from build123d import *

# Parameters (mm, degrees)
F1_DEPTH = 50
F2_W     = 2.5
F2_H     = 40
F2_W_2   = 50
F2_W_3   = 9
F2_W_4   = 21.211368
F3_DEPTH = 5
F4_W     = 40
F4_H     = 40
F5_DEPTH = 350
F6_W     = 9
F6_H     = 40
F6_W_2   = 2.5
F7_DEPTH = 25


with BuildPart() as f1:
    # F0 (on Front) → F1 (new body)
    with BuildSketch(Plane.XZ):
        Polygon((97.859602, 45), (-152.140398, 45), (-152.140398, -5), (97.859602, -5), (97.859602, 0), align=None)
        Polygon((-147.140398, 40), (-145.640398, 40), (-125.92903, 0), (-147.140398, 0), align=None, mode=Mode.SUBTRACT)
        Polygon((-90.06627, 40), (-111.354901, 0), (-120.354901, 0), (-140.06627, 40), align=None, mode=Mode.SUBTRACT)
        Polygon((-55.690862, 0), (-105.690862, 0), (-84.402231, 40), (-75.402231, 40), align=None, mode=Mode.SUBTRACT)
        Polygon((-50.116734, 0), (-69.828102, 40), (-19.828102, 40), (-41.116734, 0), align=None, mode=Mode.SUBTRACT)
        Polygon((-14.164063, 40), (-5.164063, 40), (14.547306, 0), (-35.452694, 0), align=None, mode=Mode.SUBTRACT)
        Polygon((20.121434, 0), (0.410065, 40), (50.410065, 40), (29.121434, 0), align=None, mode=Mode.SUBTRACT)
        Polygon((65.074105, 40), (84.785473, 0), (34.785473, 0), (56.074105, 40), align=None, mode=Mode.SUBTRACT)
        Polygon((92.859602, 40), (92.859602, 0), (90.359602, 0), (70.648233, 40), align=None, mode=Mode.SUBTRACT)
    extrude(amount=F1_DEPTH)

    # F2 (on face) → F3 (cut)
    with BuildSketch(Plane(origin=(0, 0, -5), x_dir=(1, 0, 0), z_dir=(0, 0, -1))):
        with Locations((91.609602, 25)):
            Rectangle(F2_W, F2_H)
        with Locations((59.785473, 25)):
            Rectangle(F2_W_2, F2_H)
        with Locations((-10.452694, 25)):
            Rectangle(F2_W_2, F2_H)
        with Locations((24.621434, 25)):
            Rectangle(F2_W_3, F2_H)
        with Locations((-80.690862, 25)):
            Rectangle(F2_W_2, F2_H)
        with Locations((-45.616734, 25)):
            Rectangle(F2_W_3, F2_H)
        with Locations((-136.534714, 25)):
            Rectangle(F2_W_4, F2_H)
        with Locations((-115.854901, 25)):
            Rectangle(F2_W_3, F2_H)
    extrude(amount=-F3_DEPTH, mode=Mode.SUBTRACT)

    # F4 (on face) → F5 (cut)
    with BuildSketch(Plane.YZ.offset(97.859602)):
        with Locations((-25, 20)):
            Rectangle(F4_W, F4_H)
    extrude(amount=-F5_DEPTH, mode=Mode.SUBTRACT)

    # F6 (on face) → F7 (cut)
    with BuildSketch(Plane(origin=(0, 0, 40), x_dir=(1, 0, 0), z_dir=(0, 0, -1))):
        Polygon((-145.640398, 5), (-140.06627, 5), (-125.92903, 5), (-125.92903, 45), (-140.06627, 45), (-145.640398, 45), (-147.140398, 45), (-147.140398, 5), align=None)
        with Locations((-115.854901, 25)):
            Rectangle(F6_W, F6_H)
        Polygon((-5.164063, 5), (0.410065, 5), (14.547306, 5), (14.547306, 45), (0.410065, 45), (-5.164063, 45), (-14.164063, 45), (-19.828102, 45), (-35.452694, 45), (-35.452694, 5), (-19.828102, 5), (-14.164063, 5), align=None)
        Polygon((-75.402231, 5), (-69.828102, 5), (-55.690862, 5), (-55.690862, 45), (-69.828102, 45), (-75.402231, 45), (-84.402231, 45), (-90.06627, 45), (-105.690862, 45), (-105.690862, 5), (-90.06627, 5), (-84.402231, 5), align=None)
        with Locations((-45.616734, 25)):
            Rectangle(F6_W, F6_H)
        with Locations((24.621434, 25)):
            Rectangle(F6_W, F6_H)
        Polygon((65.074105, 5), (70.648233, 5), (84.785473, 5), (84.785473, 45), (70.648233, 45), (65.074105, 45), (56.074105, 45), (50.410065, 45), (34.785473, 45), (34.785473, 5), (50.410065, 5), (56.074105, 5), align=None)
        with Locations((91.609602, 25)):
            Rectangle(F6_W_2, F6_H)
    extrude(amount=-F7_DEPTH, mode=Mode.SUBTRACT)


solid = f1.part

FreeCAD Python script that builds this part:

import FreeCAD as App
import Part
import Sketcher
from FreeCAD import Vector


def add_polygon(sketch, points):
    """Adds a closed chain of lines whose ends are joined by coincident constraints."""
    first, n = sketch.GeometryCount, len(points)
    for a, b in zip(points, points[1:] + points[:1]):
        sketch.addGeometry(Part.LineSegment(App.Vector(*a, 0), App.Vector(*b, 0)), False)
    for i in range(n):
        sketch.addConstraint(Sketcher.Constraint("Coincident", first + i, 2, first + (i + 1) % n, 1))

doc = App.newDocument("Part")
params = doc.addObject("Spreadsheet::Sheet", "Params")
for row, (alias, value) in enumerate([
    ("sketch1_width", "250 mm"),
    ("sketch1_width2", "50 mm"),
    ("sketch1_width3", "9 mm"),
    ("sketch1_height", "40 mm"),
    ("sketch1_width4", "1.5 mm"),
    ("pad1_length", "50 mm"),
    ("sketch2_width", "50 mm"),
    ("sketch2_width2", "9 mm"),
    ("sketch2_height", "40 mm"),
    ("sketch2_width3", "2.5 mm"),
    ("pocket1_length", "5 mm"),
    ("sketch3_width", "40 mm"),
    ("pocket2_length", "350 mm"),
    ("sketch4_width", "9 mm"),
    ("sketch4_width2", "50 mm"),
    ("sketch4_height", "40 mm"),
    ("sketch4_width3", "2.5 mm"),
    ("pocket3_length", "25 mm"),
], start=1):
    params.set(f"A{row}", alias)
    params.set(f"B{row}", "=" + value)
    params.setAlias(f"B{row}", alias)

body = doc.addObject("PartDesign::Body", "Body")

sketch1 = doc.addObject("Sketcher::SketchObject", "Sketch")
body.addObject(sketch1)
sketch1.AttachmentSupport = (doc.XZ_Plane, [""])
sketch1.MapMode = "FlatFace"
add_polygon(sketch1, [(97.9, 45), (-152.1, 45), (-152.1, -5), (97.9, -5)])
add_polygon(sketch1, [(-75.4, 40), (-55.7, 0), (-105.7, 0), (-84.4, 40)])
add_polygon(sketch1, [(-41.1, 0), (-50.1, 0), (-69.8, 40), (-19.8, 40)])
add_polygon(sketch1, [(-147.1, 0), (-147.1, 40), (-145.6, 40), (-125.9, 0)])
add_polygon(sketch1, [(-140.1, 40), (-90.1, 40), (-111.4, 0), (-120.4, 0)])
add_polygon(sketch1, [(-35.5, 0), (-14.2, 40), (-5.2, 40), (14.5, 0)])
add_polygon(sketch1, [(29.1, 0), (20.1, 0), (0.4, 40), (50.4, 40)])
add_polygon(sketch1, [(56.1, 40), (65.1, 40), (84.8, 0), (34.8, 0)])
add_polygon(sketch1, [(70.6, 40), (92.9, 40), (92.9, 0), (90.4, 0)])
sketch1.addConstraint([
    Sketcher.Constraint("Horizontal", 0),
    Sketcher.Constraint("Vertical", 1),
    Sketcher.Constraint("Horizontal", 2),
    Sketcher.Constraint("Vertical", 3),
    Sketcher.Constraint("Horizontal", 5),
    Sketcher.Constraint("Horizontal", 7),
    Sketcher.Constraint("Horizontal", 8),
    Sketcher.Constraint("Horizontal", 10),
    Sketcher.Constraint("Vertical", 12),
    Sketcher.Constraint("Horizontal", 13),
    Sketcher.Constraint("Horizontal", 15),
    Sketcher.Constraint("Horizontal", 16),
    Sketcher.Constraint("Horizontal", 18),
    Sketcher.Constraint("Horizontal", 21),
    Sketcher.Constraint("Horizontal", 23),
    Sketcher.Constraint("Horizontal", 24),
    Sketcher.Constraint("Horizontal", 26),
    Sketcher.Constraint("Horizontal", 28),
    Sketcher.Constraint("Horizontal", 30),
    Sketcher.Constraint("Horizontal", 32),
    Sketcher.Constraint("Vertical", 33),
    Sketcher.Constraint("Horizontal", 34),
    Sketcher.Constraint("PointOnObject", 4, 2, -1),
    Sketcher.Constraint("PointOnObject", 8, 2, -1),
    Sketcher.Constraint("PointOnObject", 14, 2, -1),
    Sketcher.Constraint("PointOnObject", 17, 2, -1),
    Sketcher.Constraint("PointOnObject", 22, 2, -1),
    Sketcher.Constraint("PointOnObject", 24, 2, -1),
    Sketcher.Constraint("PointOnObject", 29, 2, -1),
    Sketcher.Constraint("PointOnObject", 33, 2, -1),
    Sketcher.Constraint("Parallel", 4, 9),
    Sketcher.Constraint("Parallel", 6, 11),
    Sketcher.Constraint("Parallel", 9, 14),
    Sketcher.Constraint("Parallel", 11, 17),
    Sketcher.Constraint("Parallel", 14, 19),
    Sketcher.Constraint("Parallel", 17, 20),
    Sketcher.Constraint("Parallel", 19, 22),
    Sketcher.Constraint("Parallel", 22, 25),
    Sketcher.Constraint("Parallel", 20, 27),
    Sketcher.Constraint("Parallel", 25, 29),
    Sketcher.Constraint("Parallel", 27, 31),
    Sketcher.Constraint("Parallel", 29, 35),
    Sketcher.Constraint("Horizontal", 7, 2, 9, 2),
    Sketcher.Constraint("Horizontal", 10, 2, 12, 2),
    Sketcher.Constraint("Horizontal", 13, 2, 16, 2),
    Sketcher.Constraint("Horizontal", 19, 2, 20, 2),
    Sketcher.Constraint("Horizontal", 21, 2, 25, 2),
    Sketcher.Constraint("Horizontal", 26, 2, 28, 2),
    Sketcher.Constraint("Horizontal", 31, 2, 32, 2),
    Sketcher.Constraint("Equal", 7, 8),
    Sketcher.Constraint("Equal", 10, 16),
    Sketcher.Constraint("Equal", 18, 21),
    Sketcher.Constraint("Equal", 21, 24),
    Sketcher.Constraint("Equal", 24, 28),
    Sketcher.Constraint("Equal", 30, 1),
    Sketcher.Constraint("DistanceX", 0, 2, 0, 1, 250.0),
    Sketcher.Constraint("DistanceX", 5, 2, 5, 1, 50.0),
    Sketcher.Constraint("DistanceX", 7, 1, 7, 2, 9.0),
    Sketcher.Constraint("DistanceY", 12, 1, 12, 2, 40.0),
    Sketcher.Constraint("DistanceX", 13, 1, 13, 2, 1.5),
    Sketcher.Constraint("DistanceX", 34, 2, 34, 1, 2.5),
    Sketcher.Constraint("DistanceY", -1, 1, 0, 2, 45.0),
    Sketcher.Constraint("DistanceX", 0, 2, 12, 2, 5.0),
    Sketcher.Constraint("DistanceX", 32, 2, 3, 2, 5.0),
    Sketcher.Constraint("DistanceX", 15, 2, 15, 1, 21.211368),
    Sketcher.Constraint("DistanceX", 0, 2, -1, 1, 152.140398),
    Sketcher.Constraint("DistanceX", 9, 2, -1, 1, 69.828102),
    Sketcher.Constraint("DistanceX", 17, 2, -1, 1, 111.354901),
    Sketcher.Constraint("DistanceX", 4, 2, 20, 2, 41.526799),
    Sketcher.Constraint("DistanceX", 5, 2, -1, 1, 105.690862),
    Sketcher.Constraint("DistanceX", 23, 2, 24, 2, 55.574128),
    Sketcher.Constraint("DistanceX", 26, 2, 28, 2, 14.66404),
])
sketch1.setExpression("Constraints[91]", "Params.sketch1_width")
sketch1.setExpression("Constraints[92]", "Params.sketch1_width2")
sketch1.setExpression("Constraints[93]", "Params.sketch1_width3")
sketch1.setExpression("Constraints[94]", "Params.sketch1_height")
sketch1.setExpression("Constraints[95]", "Params.sketch1_width4")
pad1 = doc.addObject("PartDesign::Pad", "Pad")
body.addObject(pad1)
pad1.Profile = sketch1
pad1.setExpression("Length", "Params.pad1_length")

sketch2 = doc.addObject("Sketcher::SketchObject", "Sketch001")
body.addObject(sketch2)
sketch2.AttachmentSupport = (doc.XY_Plane, [""])
sketch2.MapMode = "FlatFace"
sketch2.AttachmentOffset = App.Placement(Vector(0, 0, -5), App.Rotation())
add_polygon(sketch2, [(90.4, -45), (90.4, -5), (92.9, -5), (92.9, -45)])
add_polygon(sketch2, [(34.8, -45), (34.8, -5), (84.8, -5), (84.8, -45)])
add_polygon(sketch2, [(-35.5, -45), (-35.5, -5), (14.5, -5), (14.5, -45)])
add_polygon(sketch2, [(20.1, -45), (20.1, -5), (29.1, -5), (29.1, -45)])
add_polygon(sketch2, [(-105.7, -45), (-105.7, -5), (-55.7, -5), (-55.7, -45)])
add_polygon(sketch2, [(-50.1, -45), (-50.1, -5), (-41.1, -5), (-41.1, -45)])
add_polygon(sketch2, [(-147.1, -45), (-147.1, -5), (-125.9, -5), (-125.9, -45)])
add_polygon(sketch2, [(-120.4, -45), (-120.4, -5), (-111.4, -5), (-111.4, -45)])
sketch2.addConstraint([
    Sketcher.Constraint("Vertical", 0),
    Sketcher.Constraint("Horizontal", 1),
    Sketcher.Constraint("Vertical", 2),
    Sketcher.Constraint("Horizontal", 3),
    Sketcher.Constraint("Vertical", 4),
    Sketcher.Constraint("Horizontal", 5),
    Sketcher.Constraint("Vertical", 6),
    Sketcher.Constraint("Horizontal", 7),
    Sketcher.Constraint("Vertical", 8),
    Sketcher.Constraint("Horizontal", 9),
    Sketcher.Constraint("Vertical", 10),
    Sketcher.Constraint("Horizontal", 11),
    Sketcher.Constraint("Vertical", 12),
    Sketcher.Constraint("Horizontal", 13),
    Sketcher.Constraint("Vertical", 14),
    Sketcher.Constraint("Horizontal", 15),
    Sketcher.Constraint("Vertical", 16),
    Sketcher.Constraint("Horizontal", 17),
    Sketcher.Constraint("Vertical", 18),
    Sketcher.Constraint("Horizontal", 19),
    Sketcher.Constraint("Vertical", 20),
    Sketcher.Constraint("Horizontal", 21),
    Sketcher.Constraint("Vertical", 22),
    Sketcher.Constraint("Horizontal", 23),
    Sketcher.Constraint("Vertical", 24),
    Sketcher.Constraint("Horizontal", 25),
    Sketcher.Constraint("Vertical", 26),
    Sketcher.Constraint("Horizontal", 27),
    Sketcher.Constraint("Vertical", 28),
    Sketcher.Constraint("Horizontal", 29),
    Sketcher.Constraint("Vertical", 30),
    Sketcher.Constraint("Horizontal", 31),
    Sketcher.Constraint("Horizontal", 1, 2, 4, 2),
    Sketcher.Constraint("Horizontal", 3, 2, 6, 2),
    Sketcher.Constraint("Horizontal", 5, 2, 8, 2),
    Sketcher.Constraint("Horizontal", 7, 2, 10, 2),
    Sketcher.Constraint("Horizontal", 9, 2, 12, 2),
    Sketcher.Constraint("Horizontal", 11, 2, 14, 2),
    Sketcher.Constraint("Horizontal", 13, 2, 16, 2),
    Sketcher.Constraint("Horizontal", 15, 2, 18, 2),
    Sketcher.Constraint("Horizontal", 17, 2, 20, 2),
    Sketcher.Constraint("Horizontal", 19, 2, 22, 2),
    Sketcher.Constraint("Horizontal", 21, 2, 24, 2),
    Sketcher.Constraint("Horizontal", 23, 2, 26, 2),
    Sketcher.Constraint("Horizontal", 25, 2, 28, 2),
    Sketcher.Constraint("Horizontal", 27, 2, 30, 2),
    Sketcher.Constraint("Equal", 7, 9),
    Sketcher.Constraint("Equal", 11, 17),
    Sketcher.Constraint("Equal", 15, 21),
    Sketcher.Constraint("Equal", 23, 29),
    Sketcher.Constraint("DistanceX", 5, 1, 5, 2, 50.0),
    Sketcher.Constraint("DistanceX", 13, 1, 13, 2, 9.0),
    Sketcher.Constraint("DistanceY", 0, 1, 0, 2, 40.0),
    Sketcher.Constraint("DistanceX", 1, 1, 1, 2, 2.5),
    Sketcher.Constraint("DistanceY", 0, 2, -1, 1, 5.0),
    Sketcher.Constraint("DistanceX", 25, 1, 25, 2, 21.211368),
    Sketcher.Constraint("DistanceX", -1, 1, 0, 2, 90.359602),
    Sketcher.Constraint("DistanceX", 24, 2, -1, 1, 147.140398),
    Sketcher.Constraint("DistanceX", 28, 2, -1, 1, 120.354901),
    Sketcher.Constraint("DistanceX", 16, 2, -1, 1, 105.690862),
    Sketcher.Constraint("DistanceX", 4, 2, 0, 2, 55.574129),
    Sketcher.Constraint("DistanceX", 12, 2, 4, 2, 14.664039),
    Sketcher.Constraint("DistanceX", 8, 2, 12, 2, 55.574128),
    Sketcher.Constraint("DistanceX", 17, 2, 20, 2, 5.574128),
])
sketch2.setExpression("Constraints[82]", "Params.sketch2_width")
sketch2.setExpression("Constraints[83]", "Params.sketch2_width2")
sketch2.setExpression("Constraints[84]", "Params.sketch2_height")
sketch2.setExpression("Constraints[85]", "Params.sketch2_width3")
pocket1 = doc.addObject("PartDesign::Pocket", "Pocket")
body.addObject(pocket1)
pocket1.Profile = sketch2
pocket1.setExpression("Length", "Params.pocket1_length")
pocket1.Reversed = True

sketch3 = doc.addObject("Sketcher::SketchObject", "Sketch002")
body.addObject(sketch3)
sketch3.AttachmentSupport = (doc.YZ_Plane, [""])
sketch3.MapMode = "FlatFace"
sketch3.AttachmentOffset = App.Placement(Vector(0, 0, 97.859602), App.Rotation())
add_polygon(sketch3, [(-45, 40), (-45, 0), (-5, 0), (-5, 40)])
sketch3.addConstraint([
    Sketcher.Constraint("Vertical", 0),
    Sketcher.Constraint("Horizontal", 1),
    Sketcher.Constraint("Vertical", 2),
    Sketcher.Constraint("Horizontal", 3),
    Sketcher.Constraint("PointOnObject", 0, 2, -1),
    Sketcher.Constraint("Equal", 3, 0),
    Sketcher.Constraint("DistanceX", 1, 1, 1, 2, 40.0),
    Sketcher.Constraint("DistanceX", 0, 2, -1, 1, 45.0),
])
sketch3.setExpression("Constraints[10]", "Params.sketch3_width")
pocket2 = doc.addObject("PartDesign::Pocket", "Pocket001")
body.addObject(pocket2)
pocket2.Profile = sketch3
pocket2.setExpression("Length", "Params.pocket2_length")

sketch4 = doc.addObject("Sketcher::SketchObject", "Sketch003")
body.addObject(sketch4)
sketch4.AttachmentSupport = (doc.XY_Plane, [""])
sketch4.MapMode = "FlatFace"
sketch4.AttachmentOffset = App.Placement(Vector(0, 0, 40), App.Rotation())
add_polygon(sketch4, [(-125.9, -5), (-125.9, -45), (-147.1, -45), (-147.1, -5)])
add_polygon(sketch4, [(-120.4, -45), (-120.4, -5), (-111.4, -5), (-111.4, -45)])
add_polygon(sketch4, [(14.5, -5), (14.5, -45), (-35.5, -45), (-35.5, -5)])
add_polygon(sketch4, [(-55.7, -5), (-55.7, -45), (-105.7, -45), (-105.7, -5)])
add_polygon(sketch4, [(-50.1, -45), (-50.1, -5), (-41.1, -5), (-41.1, -45)])
add_polygon(sketch4, [(20.1, -45), (20.1, -5), (29.1, -5), (29.1, -45)])
add_polygon(sketch4, [(84.8, -5), (84.8, -45), (34.8, -45), (34.8, -5)])
add_polygon(sketch4, [(90.4, -45), (90.4, -5), (92.9, -5), (92.9, -45)])
sketch4.addConstraint([
    Sketcher.Constraint("Vertical", 0),
    Sketcher.Constraint("Horizontal", 1),
    Sketcher.Constraint("Vertical", 2),
    Sketcher.Constraint("Horizontal", 3),
    Sketcher.Constraint("Vertical", 4),
    Sketcher.Constraint("Horizontal", 5),
    Sketcher.Constraint("Vertical", 6),
    Sketcher.Constraint("Horizontal", 7),
    Sketcher.Constraint("Vertical", 8),
    Sketcher.Constraint("Horizontal", 9),
    Sketcher.Constraint("Vertical", 10),
    Sketcher.Constraint("Horizontal", 11),
    Sketcher.Constraint("Vertical", 12),
    Sketcher.Constraint("Horizontal", 13),
    Sketcher.Constraint("Vertical", 14),
    Sketcher.Constraint("Horizontal", 15),
    Sketcher.Constraint("Vertical", 16),
    Sketcher.Constraint("Horizontal", 17),
    Sketcher.Constraint("Vertical", 18),
    Sketcher.Constraint("Horizontal", 19),
    Sketcher.Constraint("Vertical", 20),
    Sketcher.Constraint("Horizontal", 21),
    Sketcher.Constraint("Vertical", 22),
    Sketcher.Constraint("Horizontal", 23),
    Sketcher.Constraint("Vertical", 24),
    Sketcher.Constraint("Horizontal", 25),
    Sketcher.Constraint("Vertical", 26),
    Sketcher.Constraint("Horizontal", 27),
    Sketcher.Constraint("Vertical", 28),
    Sketcher.Constraint("Horizontal", 29),
    Sketcher.Constraint("Vertical", 30),
    Sketcher.Constraint("Horizontal", 31),
    Sketcher.Constraint("Horizontal", 3, 2, 4, 2),
    Sketcher.Constraint("Horizontal", 1, 2, 6, 2),
    Sketcher.Constraint("Horizontal", 7, 2, 8, 2),
    Sketcher.Constraint("Horizontal", 5, 2, 10, 2),
    Sketcher.Constraint("Horizontal", 9, 2, 12, 2),
    Sketcher.Constraint("Horizontal", 11, 2, 14, 2),
    Sketcher.Constraint("Horizontal", 15, 2, 16, 2),
    Sketcher.Constraint("Horizontal", 13, 2, 18, 2),
    Sketcher.Constraint("Horizontal", 17, 2, 20, 2),
    Sketcher.Constraint("Horizontal", 19, 2, 22, 2),
    Sketcher.Constraint("Horizontal", 23, 2, 24, 2),
    Sketcher.Constraint("Horizontal", 21, 2, 26, 2),
    Sketcher.Constraint("Horizontal", 27, 2, 28, 2),
    Sketcher.Constraint("Horizontal", 25, 2, 30, 2),
    Sketcher.Constraint("Equal", 11, 13),
    Sketcher.Constraint("Equal", 7, 17),
    Sketcher.Constraint("Equal", 19, 21),
    Sketcher.Constraint("Equal", 15, 25),
    Sketcher.Constraint("DistanceX", 5, 1, 5, 2, 9.0),
    Sketcher.Constraint("DistanceX", 9, 2, 9, 1, 50.0),
    Sketcher.Constraint("DistanceY", 0, 2, 0, 1, 40.0),
    Sketcher.Constraint("DistanceX", 29, 1, 29, 2, 2.5),
    Sketcher.Constraint("DistanceY", 0, 2, -1, 1, 45.0),
    Sketcher.Constraint("DistanceX", 1, 2, 1, 1, 21.211368),
    Sketcher.Constraint("DistanceX", 1, 2, -1, 1, 147.140398),
    Sketcher.Constraint("DistanceX", 4, 2, -1, 1, 120.354901),
    Sketcher.Constraint("DistanceX", -1, 1, 28, 2, 90.359602),
    Sketcher.Constraint("DistanceX", 13, 2, -1, 1, 105.690862),
    Sketcher.Constraint("DistanceX", 12, 2, 9, 2, 20.238168),
    Sketcher.Constraint("DistanceX", 15, 2, 16, 2, 5.574128),
    Sketcher.Constraint("DistanceX", 10, 2, 20, 2, 55.574128),
    Sketcher.Constraint("DistanceX", 22, 2, 24, 2, 55.664039),
])
sketch4.setExpression("Constraints[82]", "Params.sketch4_width")
sketch4.setExpression("Constraints[83]", "Params.sketch4_width2")
sketch4.setExpression("Constraints[84]", "Params.sketch4_height")
sketch4.setExpression("Constraints[85]", "Params.sketch4_width3")
pocket3 = doc.addObject("PartDesign::Pocket", "Pocket002")
body.addObject(pocket3)
pocket3.Profile = sketch4
pocket3.setExpression("Length", "Params.pocket3_length")
pocket3.Reversed = True

doc.recompute()
